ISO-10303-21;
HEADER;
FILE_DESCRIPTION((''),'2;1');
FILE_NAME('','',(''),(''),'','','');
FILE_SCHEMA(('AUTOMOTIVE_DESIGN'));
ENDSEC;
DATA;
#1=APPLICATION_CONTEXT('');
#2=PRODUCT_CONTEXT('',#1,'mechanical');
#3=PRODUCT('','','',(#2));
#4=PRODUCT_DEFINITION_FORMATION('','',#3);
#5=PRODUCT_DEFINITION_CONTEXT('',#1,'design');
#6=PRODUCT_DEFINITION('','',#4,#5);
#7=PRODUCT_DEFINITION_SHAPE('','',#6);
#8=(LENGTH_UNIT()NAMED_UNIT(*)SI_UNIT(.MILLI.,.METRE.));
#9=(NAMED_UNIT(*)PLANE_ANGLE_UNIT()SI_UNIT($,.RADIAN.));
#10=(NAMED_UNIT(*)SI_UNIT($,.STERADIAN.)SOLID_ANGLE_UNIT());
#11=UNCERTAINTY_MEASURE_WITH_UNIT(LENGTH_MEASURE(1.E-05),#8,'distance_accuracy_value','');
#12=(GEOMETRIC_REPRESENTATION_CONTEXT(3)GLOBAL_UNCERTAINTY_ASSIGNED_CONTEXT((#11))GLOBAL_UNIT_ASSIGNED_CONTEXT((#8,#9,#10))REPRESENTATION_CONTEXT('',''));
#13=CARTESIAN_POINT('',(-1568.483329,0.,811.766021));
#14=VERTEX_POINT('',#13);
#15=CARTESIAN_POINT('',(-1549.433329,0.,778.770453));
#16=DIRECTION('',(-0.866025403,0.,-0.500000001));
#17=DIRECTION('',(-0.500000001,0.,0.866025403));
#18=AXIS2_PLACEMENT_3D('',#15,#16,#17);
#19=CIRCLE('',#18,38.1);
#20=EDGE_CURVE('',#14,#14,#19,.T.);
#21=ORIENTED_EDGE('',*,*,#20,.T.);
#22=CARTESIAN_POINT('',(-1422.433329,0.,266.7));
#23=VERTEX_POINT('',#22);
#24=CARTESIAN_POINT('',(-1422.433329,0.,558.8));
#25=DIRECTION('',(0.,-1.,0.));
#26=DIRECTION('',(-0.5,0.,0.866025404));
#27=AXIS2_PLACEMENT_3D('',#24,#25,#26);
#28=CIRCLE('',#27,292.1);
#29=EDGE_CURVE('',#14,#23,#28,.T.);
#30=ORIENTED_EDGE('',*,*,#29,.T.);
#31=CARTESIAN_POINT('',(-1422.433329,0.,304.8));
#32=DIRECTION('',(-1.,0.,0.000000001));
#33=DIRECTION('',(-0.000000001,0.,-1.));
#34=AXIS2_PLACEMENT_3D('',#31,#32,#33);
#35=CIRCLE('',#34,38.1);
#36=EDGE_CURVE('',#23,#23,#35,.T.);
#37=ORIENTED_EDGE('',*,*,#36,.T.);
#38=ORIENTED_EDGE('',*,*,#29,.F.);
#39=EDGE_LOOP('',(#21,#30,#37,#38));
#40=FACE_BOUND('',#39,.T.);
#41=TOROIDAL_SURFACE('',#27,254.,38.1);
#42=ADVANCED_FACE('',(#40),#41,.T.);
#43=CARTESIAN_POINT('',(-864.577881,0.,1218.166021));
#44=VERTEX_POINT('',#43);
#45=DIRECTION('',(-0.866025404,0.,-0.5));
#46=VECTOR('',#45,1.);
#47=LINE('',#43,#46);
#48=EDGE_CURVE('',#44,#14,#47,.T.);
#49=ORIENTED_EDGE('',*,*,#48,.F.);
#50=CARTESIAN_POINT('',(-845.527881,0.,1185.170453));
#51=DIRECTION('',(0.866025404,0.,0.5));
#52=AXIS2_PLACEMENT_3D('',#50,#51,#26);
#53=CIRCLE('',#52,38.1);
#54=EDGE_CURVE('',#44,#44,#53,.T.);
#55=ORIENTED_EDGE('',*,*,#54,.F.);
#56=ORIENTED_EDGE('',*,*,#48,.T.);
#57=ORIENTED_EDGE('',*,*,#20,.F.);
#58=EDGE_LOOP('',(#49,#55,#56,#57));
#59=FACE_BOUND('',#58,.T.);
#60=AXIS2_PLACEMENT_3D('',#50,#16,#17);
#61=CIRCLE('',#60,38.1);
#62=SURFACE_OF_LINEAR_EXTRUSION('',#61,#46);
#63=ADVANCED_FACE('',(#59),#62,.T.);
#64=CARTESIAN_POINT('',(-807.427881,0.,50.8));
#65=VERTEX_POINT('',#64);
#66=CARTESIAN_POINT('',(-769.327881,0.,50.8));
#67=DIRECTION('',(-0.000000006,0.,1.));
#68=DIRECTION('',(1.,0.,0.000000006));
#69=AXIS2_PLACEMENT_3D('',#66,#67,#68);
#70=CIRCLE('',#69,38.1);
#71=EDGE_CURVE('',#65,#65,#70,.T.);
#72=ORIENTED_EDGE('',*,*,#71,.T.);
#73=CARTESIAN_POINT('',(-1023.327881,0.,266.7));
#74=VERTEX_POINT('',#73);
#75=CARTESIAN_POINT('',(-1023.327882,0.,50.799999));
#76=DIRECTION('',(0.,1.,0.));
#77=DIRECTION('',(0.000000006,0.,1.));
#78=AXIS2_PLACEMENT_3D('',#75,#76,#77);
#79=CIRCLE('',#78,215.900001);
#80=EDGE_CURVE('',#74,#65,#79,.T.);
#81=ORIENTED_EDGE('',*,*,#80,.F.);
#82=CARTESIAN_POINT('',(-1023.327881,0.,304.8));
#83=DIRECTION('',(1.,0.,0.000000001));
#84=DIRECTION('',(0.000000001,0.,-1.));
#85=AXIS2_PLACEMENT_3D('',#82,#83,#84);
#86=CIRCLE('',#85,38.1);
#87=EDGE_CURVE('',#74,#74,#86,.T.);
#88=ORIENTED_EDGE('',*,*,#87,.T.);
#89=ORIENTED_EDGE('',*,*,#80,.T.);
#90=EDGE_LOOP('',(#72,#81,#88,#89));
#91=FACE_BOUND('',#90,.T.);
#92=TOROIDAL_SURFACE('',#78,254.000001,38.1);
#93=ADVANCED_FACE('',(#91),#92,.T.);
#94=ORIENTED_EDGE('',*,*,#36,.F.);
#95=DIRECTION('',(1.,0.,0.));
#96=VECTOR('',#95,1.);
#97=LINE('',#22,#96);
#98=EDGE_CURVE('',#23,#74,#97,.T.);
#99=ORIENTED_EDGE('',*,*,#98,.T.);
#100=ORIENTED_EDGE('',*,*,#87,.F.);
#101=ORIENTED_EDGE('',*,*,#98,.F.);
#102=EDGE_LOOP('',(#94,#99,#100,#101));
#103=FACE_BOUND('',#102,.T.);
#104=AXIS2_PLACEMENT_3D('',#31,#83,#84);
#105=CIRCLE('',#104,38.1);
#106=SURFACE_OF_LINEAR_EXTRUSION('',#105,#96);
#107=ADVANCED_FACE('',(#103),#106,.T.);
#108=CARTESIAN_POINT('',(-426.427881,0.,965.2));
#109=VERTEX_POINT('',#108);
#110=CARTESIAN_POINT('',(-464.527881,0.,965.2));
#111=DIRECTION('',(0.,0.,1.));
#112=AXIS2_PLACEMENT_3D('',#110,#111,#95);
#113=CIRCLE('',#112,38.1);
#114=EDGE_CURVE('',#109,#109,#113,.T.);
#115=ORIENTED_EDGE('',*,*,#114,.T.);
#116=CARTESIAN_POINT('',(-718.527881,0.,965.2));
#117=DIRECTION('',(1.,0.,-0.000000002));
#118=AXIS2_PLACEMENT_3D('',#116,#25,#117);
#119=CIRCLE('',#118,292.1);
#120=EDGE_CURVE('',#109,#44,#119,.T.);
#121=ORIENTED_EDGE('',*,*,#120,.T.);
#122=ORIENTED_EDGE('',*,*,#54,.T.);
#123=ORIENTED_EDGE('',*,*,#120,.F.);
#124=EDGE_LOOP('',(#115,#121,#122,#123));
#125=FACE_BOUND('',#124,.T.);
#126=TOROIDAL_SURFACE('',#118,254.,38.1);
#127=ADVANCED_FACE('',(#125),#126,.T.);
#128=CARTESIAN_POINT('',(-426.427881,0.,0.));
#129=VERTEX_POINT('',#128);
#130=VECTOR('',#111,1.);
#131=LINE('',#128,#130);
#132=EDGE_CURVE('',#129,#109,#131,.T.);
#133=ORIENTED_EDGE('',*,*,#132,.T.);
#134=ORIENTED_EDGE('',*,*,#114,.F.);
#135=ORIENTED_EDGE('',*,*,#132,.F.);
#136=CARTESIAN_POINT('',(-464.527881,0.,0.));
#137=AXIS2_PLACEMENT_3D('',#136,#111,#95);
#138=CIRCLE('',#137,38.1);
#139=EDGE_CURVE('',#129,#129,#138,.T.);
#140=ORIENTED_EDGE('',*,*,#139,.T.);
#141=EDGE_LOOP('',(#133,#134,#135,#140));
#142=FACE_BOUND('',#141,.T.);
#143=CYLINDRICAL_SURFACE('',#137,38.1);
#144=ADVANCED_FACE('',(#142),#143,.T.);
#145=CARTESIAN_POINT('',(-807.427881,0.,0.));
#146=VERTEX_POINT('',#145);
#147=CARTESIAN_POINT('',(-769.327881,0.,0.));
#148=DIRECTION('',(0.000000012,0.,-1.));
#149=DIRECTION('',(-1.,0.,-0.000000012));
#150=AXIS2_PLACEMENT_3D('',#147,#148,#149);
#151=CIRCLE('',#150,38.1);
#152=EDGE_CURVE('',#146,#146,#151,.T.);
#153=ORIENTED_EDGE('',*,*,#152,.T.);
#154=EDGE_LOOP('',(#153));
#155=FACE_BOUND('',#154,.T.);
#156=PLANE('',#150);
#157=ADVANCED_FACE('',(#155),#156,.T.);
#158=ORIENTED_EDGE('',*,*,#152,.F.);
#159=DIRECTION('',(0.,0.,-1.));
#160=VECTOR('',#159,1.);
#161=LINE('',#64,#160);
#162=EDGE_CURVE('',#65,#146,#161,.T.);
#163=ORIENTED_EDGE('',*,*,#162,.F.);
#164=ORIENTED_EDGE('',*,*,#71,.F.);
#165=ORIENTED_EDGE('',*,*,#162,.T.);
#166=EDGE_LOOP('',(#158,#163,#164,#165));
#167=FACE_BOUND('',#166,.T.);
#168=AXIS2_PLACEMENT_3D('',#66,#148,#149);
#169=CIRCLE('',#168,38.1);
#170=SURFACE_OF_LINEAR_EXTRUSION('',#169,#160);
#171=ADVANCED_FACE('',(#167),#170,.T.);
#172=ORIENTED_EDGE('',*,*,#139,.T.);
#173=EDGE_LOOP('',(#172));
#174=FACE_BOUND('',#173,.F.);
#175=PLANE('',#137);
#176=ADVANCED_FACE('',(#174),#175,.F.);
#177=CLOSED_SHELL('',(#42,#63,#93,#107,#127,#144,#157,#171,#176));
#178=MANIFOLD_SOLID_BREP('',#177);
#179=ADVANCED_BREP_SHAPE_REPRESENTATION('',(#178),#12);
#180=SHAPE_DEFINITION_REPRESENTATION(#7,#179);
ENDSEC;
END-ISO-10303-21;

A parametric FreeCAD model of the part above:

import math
import FreeCAD as App
import Part
import Sketcher
from FreeCAD import Vector
Q = App.Units.Quantity

doc = App.newDocument("Part")
body = doc.addObject("PartDesign::Body", "Body")

sketch1 = body.newObject("Sketcher::SketchObject", "Sketch")
sketch1.AttachmentSupport = (doc.getObject("XY_Plane"), [""])
sketch1.MapMode = "FlatFace"
sketch1.addGeometry(Part.Circle(Vector(-464.527881, 0, 0), Vector(0, 0, 1), 38.1), False)
sketch1.addConstraint([
    Sketcher.Constraint("PointOnObject", 0, 3, -1),
    Sketcher.Constraint("Diameter", 0, Q("3 in")),
    Sketcher.Constraint("DistanceX", 0, 3, -1, 1, 464.527881),
])

sketch2 = body.newObject("Sketcher::SketchObject", "Sketch001")
sketch2.AttachmentSupport = (doc.getObject("XZ_Plane"), [""])
sketch2.MapMode = "FlatFace"
sketch2.addGeometry([
    Part.LineSegment(Vector(-464.527881, 0, 0), Vector(-464.527881, 965.2, 0)),
    Part.ArcOfCircle(Part.Circle(Vector(-718.527881, 965.2, 0), Vector(0, 0, 1), 254), math.radians(0), math.radians(120)),
    Part.LineSegment(Vector(-845.527881, 1185.170453, 0), Vector(-1549.433329, 778.770453, 0)),
    Part.ArcOfCircle(Part.Circle(Vector(-1422.433329, 558.8, 0), Vector(0, 0, 1), 254), math.radians(120), math.radians(270)),
    Part.LineSegment(Vector(-1422.433329, 304.8, 0), Vector(-1023.327881, 304.8, 0)),
    Part.ArcOfCircle(Part.Circle(Vector(-1023.327882, 50.799999, 0), Vector(0, 0, 1), 254.000001), math.radians(0), math.radians(90)),
    Part.LineSegment(Vector(-769.327881, 50.8, 0), Vector(-769.327881, 0, 0)),
], False)
sketch2.addConstraint([
    Sketcher.Constraint("Tangent", 0, 2, 1, 1),
    Sketcher.Constraint("Tangent", 1, 2, 2, 1),
    Sketcher.Constraint("Tangent", 2, 2, 3, 1),
    Sketcher.Constraint("Tangent", 3, 2, 4, 1),
    Sketcher.Constraint("Tangent", 4, 2, 5, 2),
    Sketcher.Constraint("Tangent", 5, 1, 6, 1),
    Sketcher.Constraint("Vertical", 0),
    Sketcher.Constraint("Horizontal", 4),
    Sketcher.Constraint("Vertical", 6),
    Sketcher.Constraint("Equal", 1, 3),
    Sketcher.Constraint("Equal", 3, 5),
    Sketcher.Constraint("PointOnObject", 0, 1, -1),
    Sketcher.Constraint("PointOnObject", 6, 2, -1),
    Sketcher.Constraint("Radius", 1, Q("10 in")),
    Sketcher.Constraint("DistanceY", 0, 1, 0, 2, Q("38 in")),
    Sketcher.Constraint("DistanceY", 6, 2, 6, 1, Q("2 in")),
    Sketcher.Constraint("Distance", 2, Q("32 in")),
    Sketcher.Constraint("DistanceX", 5, 3, 1, 3, Q("12.0000001 in")),
    Sketcher.Constraint("DistanceX", 1, 3, -1, 1, 718.527881),
])
doc.recompute()

additivepipe = body.newObject("PartDesign::AdditivePipe", "AdditivePipe")
additivepipe.Profile = sketch1
additivepipe.Spine = (sketch2, ["Edge1", "Edge2", "Edge3", "Edge4", "Edge5", "Edge6", "Edge7"])

doc.recompute()
